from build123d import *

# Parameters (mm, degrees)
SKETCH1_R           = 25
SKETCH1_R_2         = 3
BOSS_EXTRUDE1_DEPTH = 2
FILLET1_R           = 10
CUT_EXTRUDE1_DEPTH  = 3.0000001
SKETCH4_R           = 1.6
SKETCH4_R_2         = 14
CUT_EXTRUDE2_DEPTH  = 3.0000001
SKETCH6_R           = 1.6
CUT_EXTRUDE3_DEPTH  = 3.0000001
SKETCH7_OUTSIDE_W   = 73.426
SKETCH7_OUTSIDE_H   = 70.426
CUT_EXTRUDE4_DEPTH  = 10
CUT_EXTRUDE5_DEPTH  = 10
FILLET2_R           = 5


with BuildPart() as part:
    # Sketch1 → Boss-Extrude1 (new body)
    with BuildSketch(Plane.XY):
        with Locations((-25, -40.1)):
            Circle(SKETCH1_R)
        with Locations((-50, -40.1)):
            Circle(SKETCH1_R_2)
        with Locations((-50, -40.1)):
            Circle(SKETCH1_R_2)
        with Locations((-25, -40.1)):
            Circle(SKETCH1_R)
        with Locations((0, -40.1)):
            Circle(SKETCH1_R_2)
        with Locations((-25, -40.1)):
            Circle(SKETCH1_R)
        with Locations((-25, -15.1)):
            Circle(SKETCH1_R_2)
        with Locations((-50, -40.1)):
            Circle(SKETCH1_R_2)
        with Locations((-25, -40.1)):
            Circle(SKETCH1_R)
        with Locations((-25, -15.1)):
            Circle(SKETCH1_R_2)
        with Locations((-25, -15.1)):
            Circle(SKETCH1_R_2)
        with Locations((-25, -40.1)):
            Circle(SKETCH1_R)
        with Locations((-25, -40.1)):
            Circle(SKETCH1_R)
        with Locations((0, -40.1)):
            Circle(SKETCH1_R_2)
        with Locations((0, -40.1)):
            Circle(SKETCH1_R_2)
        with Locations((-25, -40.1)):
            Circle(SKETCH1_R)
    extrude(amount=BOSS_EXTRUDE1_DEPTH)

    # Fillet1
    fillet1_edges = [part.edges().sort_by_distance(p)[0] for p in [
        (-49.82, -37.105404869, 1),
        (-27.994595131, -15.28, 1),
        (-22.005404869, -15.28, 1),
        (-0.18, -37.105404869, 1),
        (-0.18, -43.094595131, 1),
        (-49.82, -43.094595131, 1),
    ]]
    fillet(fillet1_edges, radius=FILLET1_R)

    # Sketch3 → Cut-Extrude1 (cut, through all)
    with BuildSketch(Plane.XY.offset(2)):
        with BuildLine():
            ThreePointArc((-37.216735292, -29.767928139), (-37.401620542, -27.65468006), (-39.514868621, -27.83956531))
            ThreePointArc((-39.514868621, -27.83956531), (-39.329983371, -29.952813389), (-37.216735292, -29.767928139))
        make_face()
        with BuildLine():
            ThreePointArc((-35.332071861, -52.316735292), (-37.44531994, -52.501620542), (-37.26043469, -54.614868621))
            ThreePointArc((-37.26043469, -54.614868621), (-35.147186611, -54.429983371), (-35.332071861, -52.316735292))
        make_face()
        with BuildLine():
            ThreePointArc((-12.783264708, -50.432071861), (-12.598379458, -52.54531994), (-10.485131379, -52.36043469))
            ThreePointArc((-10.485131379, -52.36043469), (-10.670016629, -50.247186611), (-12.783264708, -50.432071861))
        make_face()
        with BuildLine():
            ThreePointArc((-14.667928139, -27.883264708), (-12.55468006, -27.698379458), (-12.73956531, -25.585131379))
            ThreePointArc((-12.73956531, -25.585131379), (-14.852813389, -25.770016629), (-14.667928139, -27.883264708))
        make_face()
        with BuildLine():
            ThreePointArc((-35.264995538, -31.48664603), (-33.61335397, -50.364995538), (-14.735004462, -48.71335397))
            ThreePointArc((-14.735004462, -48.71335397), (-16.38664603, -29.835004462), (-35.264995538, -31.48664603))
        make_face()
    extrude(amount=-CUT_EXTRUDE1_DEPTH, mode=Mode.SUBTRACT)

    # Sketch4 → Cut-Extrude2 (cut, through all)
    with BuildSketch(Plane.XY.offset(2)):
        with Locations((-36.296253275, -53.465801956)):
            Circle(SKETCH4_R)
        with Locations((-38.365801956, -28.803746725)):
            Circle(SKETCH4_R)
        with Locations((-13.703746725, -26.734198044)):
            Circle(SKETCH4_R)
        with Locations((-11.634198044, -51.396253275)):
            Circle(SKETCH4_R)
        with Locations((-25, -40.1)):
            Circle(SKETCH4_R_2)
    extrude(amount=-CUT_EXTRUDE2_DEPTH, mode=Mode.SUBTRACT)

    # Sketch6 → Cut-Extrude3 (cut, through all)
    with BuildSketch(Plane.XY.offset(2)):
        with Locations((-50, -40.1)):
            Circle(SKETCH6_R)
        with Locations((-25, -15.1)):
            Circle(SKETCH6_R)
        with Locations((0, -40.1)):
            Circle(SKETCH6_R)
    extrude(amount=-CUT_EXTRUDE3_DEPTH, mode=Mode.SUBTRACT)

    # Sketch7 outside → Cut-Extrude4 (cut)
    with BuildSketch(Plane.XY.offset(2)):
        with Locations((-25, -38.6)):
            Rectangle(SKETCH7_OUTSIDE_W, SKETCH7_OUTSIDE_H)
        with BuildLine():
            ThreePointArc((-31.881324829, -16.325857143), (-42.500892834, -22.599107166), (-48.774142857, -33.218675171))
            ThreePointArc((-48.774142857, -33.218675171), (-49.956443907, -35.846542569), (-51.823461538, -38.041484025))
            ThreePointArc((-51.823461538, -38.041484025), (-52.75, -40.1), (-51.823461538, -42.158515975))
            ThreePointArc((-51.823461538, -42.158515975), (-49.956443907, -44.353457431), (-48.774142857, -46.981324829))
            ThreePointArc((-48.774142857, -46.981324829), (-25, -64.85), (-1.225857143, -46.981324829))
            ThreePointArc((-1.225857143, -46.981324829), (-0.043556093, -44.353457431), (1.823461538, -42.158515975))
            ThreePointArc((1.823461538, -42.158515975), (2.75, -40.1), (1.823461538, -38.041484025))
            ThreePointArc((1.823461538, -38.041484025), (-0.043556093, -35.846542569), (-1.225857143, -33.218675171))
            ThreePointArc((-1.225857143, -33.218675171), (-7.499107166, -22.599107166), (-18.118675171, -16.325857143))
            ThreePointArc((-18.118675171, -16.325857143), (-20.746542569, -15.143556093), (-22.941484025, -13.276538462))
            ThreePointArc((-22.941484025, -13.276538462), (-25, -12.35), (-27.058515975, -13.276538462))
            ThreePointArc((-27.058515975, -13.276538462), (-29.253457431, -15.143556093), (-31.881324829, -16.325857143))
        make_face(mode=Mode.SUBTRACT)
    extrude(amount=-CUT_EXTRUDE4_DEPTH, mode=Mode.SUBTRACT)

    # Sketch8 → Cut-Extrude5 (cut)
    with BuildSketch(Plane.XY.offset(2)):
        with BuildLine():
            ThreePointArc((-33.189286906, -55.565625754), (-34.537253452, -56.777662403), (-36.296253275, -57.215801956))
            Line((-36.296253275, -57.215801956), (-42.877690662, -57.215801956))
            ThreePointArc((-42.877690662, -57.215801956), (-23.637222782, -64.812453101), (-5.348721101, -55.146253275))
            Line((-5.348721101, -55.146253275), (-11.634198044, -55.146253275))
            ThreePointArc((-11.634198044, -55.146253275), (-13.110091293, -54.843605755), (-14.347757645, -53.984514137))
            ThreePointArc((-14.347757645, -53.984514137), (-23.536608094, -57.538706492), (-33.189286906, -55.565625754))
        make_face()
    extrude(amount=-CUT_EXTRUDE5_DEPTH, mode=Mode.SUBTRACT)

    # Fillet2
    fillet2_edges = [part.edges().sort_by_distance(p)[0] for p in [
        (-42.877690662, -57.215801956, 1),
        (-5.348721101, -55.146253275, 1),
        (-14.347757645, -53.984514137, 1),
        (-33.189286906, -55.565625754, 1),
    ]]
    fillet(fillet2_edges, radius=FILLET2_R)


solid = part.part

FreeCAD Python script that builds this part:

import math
import FreeCAD as App
import Part
import Sketcher


def edges_at(feature, points):
    """Names of the edges that pass closest to the given points."""
    edges = feature.Shape.Edges
    near = lambda p: min(range(len(edges)), key=lambda i: edges[i].distToShape(Part.Vertex(*p))[0])
    return sorted({f"Edge{near(p) + 1}" for p in points})

doc = App.newDocument("Part")
body = doc.addObject("PartDesign::Body", "Body")

sketch1 = body.newObject("Sketcher::SketchObject", "Sketch")
sketch1.AttachmentSupport = (doc.getObject("XY_Plane"), [""])
sketch1.MapMode = "FlatFace"
sketch1.addGeometry(Part.ArcOfCircle(Part.Circle(App.Vector(-25, -40.1, 0), App.Vector(0, 0, 1), 25), math.radians(-173.120374), math.radians(-6.879626)), False)
sketch1.addGeometry(Part.ArcOfCircle(Part.Circle(App.Vector(0, -40.1, 0), App.Vector(0, 0, 1), 3), math.radians(-93.439813), math.radians(93.439813)), False)
sketch1.addGeometry(Part.ArcOfCircle(Part.Circle(App.Vector(-25, -40.1, 0), App.Vector(0, 0, 1), 25), math.radians(6.879626), math.radians(83.120374)), False)
sketch1.addGeometry(Part.ArcOfCircle(Part.Circle(App.Vector(-25, -15.1, 0), App.Vector(0, 0, 1), 3), math.radians(-3.439813), math.radians(183.439813)), False)
sketch1.addGeometry(Part.ArcOfCircle(Part.Circle(App.Vector(-25, -40.1, 0), App.Vector(0, 0, 1), 25), math.radians(96.879626), math.radians(173.120374)), False)
sketch1.addGeometry(Part.ArcOfCircle(Part.Circle(App.Vector(-50, -40.1, 0), App.Vector(0, 0, 1), 3), math.radians(86.560187), math.radians(273.439813)), False)
sketch1.addConstraint(Sketcher.Constraint("Coincident", 0, 2, 1, 1))
sketch1.addConstraint(Sketcher.Constraint("Coincident", 1, 2, 2, 1))
sketch1.addConstraint(Sketcher.Constraint("Coincident", 2, 2, 3, 1))
sketch1.addConstraint(Sketcher.Constraint("Coincident", 3, 2, 4, 1))
sketch1.addConstraint(Sketcher.Constraint("Coincident", 4, 2, 5, 1))
sketch1.addConstraint(Sketcher.Constraint("Coincident", 5, 2, 0, 1))
sketch1.addConstraint(Sketcher.Constraint("Coincident", 2, 3, 0, 3))
sketch1.addConstraint(Sketcher.Constraint("Coincident", 4, 3, 0, 3))
sketch1.addConstraint(Sketcher.Constraint("Equal", 0, 2))
sketch1.addConstraint(Sketcher.Constraint("Equal", 1, 3))
sketch1.addConstraint(Sketcher.Constraint("Equal", 2, 4))
sketch1.addConstraint(Sketcher.Constraint("Equal", 3, 5))
sketch1.addConstraint(Sketcher.Constraint("PointOnObject", 1, 3, -2))
sketch1.addConstraint(Sketcher.Constraint("Horizontal", 0, 3, 1, 3))
sketch1.addConstraint(Sketcher.Constraint("Horizontal", 4, 3, 5, 3))
sketch1.addConstraint(Sketcher.Constraint("Horizontal", 2, 2, 3, 2))
sketch1.addConstraint(Sketcher.Constraint("Horizontal", 1, 2, 4, 2))
sketch1.addConstraint(Sketcher.Constraint("Radius", 0, 25.0))
sketch1.addConstraint(Sketcher.Constraint("Radius", 1, 3.0))
sketch1.addConstraint(Sketcher.Constraint("DistanceX", 0, 3, -1, 1, 25.0))
sketch1.addConstraint(Sketcher.Constraint("DistanceY", 0, 3, 3, 3, 25.0))
sketch1.addConstraint(Sketcher.Constraint("DistanceY", 0, 3, -1, 1, 40.1))
pad1 = body.newObject("PartDesign::Pad", "Pad")
pad1.Profile = sketch1
pad1.Length = 2
doc.recompute()

fillet = body.newObject("PartDesign::Fillet", "Fillet")
fillet.Base = (pad1, edges_at(pad1, [
    (-49.82, -37.105, 1),
    (-27.995, -15.28, 1),
    (-22.005, -15.28, 1),
    (-0.18, -37.105, 1),
    (-0.18, -43.095, 1),
    (-49.82, -43.095, 1),
]))
fillet.Radius = 10

sketch2 = body.newObject("Sketcher::SketchObject", "Sketch001")
sketch2.AttachmentSupport = (doc.getObject("XY_Plane"), [""])
sketch2.MapMode = "FlatFace"
sketch2.AttachmentOffset = App.Placement(App.Vector(0, 0, 2), App.Rotation())
sketch2.addGeometry(Part.Circle(App.Vector(-38.365802, -28.803747, 0), App.Vector(0, 0, 1), 1.5), False)
sketch2.addGeometry(Part.Circle(App.Vector(-36.296253, -53.465802, 0), App.Vector(0, 0, 1), 1.5), False)
sketch2.addGeometry(Part.Circle(App.Vector(-11.634198, -51.396253, 0), App.Vector(0, 0, 1), 1.5), False)
sketch2.addGeometry(Part.Circle(App.Vector(-13.703747, -26.734198, 0), App.Vector(0, 0, 1), 1.5), False)
sketch2.addGeometry(Part.Circle(App.Vector(-25, -40.1, 0), App.Vector(0, 0, 1), 13.4), False)
sketch2.addConstraint(Sketcher.Constraint("Equal", 0, 1))
sketch2.addConstraint(Sketcher.Constraint("Equal", 1, 2))
sketch2.addConstraint(Sketcher.Constraint("Equal", 2, 3))
sketch2.addConstraint(Sketcher.Constraint("Diameter", 0, 3.0))
sketch2.addConstraint(Sketcher.Constraint("Diameter", 4, 26.8))
sketch2.addConstraint(Sketcher.Constraint("DistanceX", 4, 3, -1, 1, 25.0))
sketch2.addConstraint(Sketcher.Constraint("DistanceY", 4, 3, -1, 1, 40.1))
sketch2.addConstraint(Sketcher.Constraint("DistanceX", 0, 3, -1, 1, 38.365802))
sketch2.addConstraint(Sketcher.Constraint("DistanceY", 1, 3, -1, 1, 53.465802))
sketch2.addConstraint(Sketcher.Constraint("DistanceX", 2, 3, -1, 1, 11.634198))
sketch2.addConstraint(Sketcher.Constraint("DistanceY", 3, 3, -1, 1, 26.734198))
sketch2.addConstraint(Sketcher.Constraint("DistanceX", 0, 3, 1, 3, 2.069549))
sketch2.addConstraint(Sketcher.Constraint("DistanceY", 1, 3, 2, 3, 2.069549))
sketch2.addConstraint(Sketcher.Constraint("DistanceY", 0, 3, 3, 3, 2.069549))
sketch2.addConstraint(Sketcher.Constraint("DistanceX", 3, 3, 2, 3, 2.069549))
pocket1 = body.newObject("PartDesign::Pocket", "Pocket")
pocket1.Profile = sketch2
pocket1.Type = "ThroughAll"

sketch3 = body.newObject("Sketcher::SketchObject", "Sketch002")
sketch3.AttachmentSupport = (doc.getObject("XY_Plane"), [""])
sketch3.MapMode = "FlatFace"
sketch3.AttachmentOffset = App.Placement(App.Vector(0, 0, 2), App.Rotation())
sketch3.addGeometry(Part.Circle(App.Vector(-36.296253, -53.465802, 0), App.Vector(0, 0, 1), 1.6), False)
sketch3.addGeometry(Part.Circle(App.Vector(-38.365802, -28.803747, 0), App.Vector(0, 0, 1), 1.6), False)
sketch3.addGeometry(Part.Circle(App.Vector(-13.703747, -26.734198, 0), App.Vector(0, 0, 1), 1.6), False)
sketch3.addGeometry(Part.Circle(App.Vector(-11.634198, -51.396253, 0), App.Vector(0, 0, 1), 1.6), False)
sketch3.addGeometry(Part.Circle(App.Vector(-25, -40.1, 0), App.Vector(0, 0, 1), 14), False)
sketch3.addConstraint(Sketcher.Constraint("Equal", 0, 1))
sketch3.addConstraint(Sketcher.Constraint("Equal", 1, 2))
sketch3.addConstraint(Sketcher.Constraint("Equal", 2, 3))
sketch3.addConstraint(Sketcher.Constraint("Diameter", 4, 28.0))
sketch3.addConstraint(Sketcher.Constraint("Diameter", 0, 3.2))
sketch3.addConstraint(Sketcher.Constraint("DistanceX", 4, 3, -1, 1, 25.0))
sketch3.addConstraint(Sketcher.Constraint("DistanceY", 4, 3, -1, 1, 40.1))
sketch3.addConstraint(Sketcher.Constraint("DistanceY", 0, 3, -1, 1, 53.465802))
sketch3.addConstraint(Sketcher.Constraint("DistanceX", 1, 3, -1, 1, 38.365802))
sketch3.addConstraint(Sketcher.Constraint("DistanceY", 2, 3, -1, 1, 26.734198))
sketch3.addConstraint(Sketcher.Constraint("DistanceX", 3, 3, -1, 1, 11.634198))
sketch3.addConstraint(Sketcher.Constraint("DistanceX", 1, 3, 0, 3, 2.069549))
sketch3.addConstraint(Sketcher.Constraint("DistanceY", 1, 3, 2, 3, 2.069549))
sketch3.addConstraint(Sketcher.Constraint("DistanceY", 0, 3, 3, 3, 2.069549))
sketch3.addConstraint(Sketcher.Constraint("DistanceX", 2, 3, 3, 3, 2.069549))
pocket2 = body.newObject("PartDesign::Pocket", "Pocket001")
pocket2.Profile = sketch3
pocket2.Type = "ThroughAll"

sketch4 = body.newObject("Sketcher::SketchObject", "Sketch003")
sketch4.AttachmentSupport = (doc.getObject("XY_Plane"), [""])
sketch4.MapMode = "FlatFace"
sketch4.AttachmentOffset = App.Placement(App.Vector(0, 0, 2), App.Rotation())
sketch4.addGeometry(Part.Circle(App.Vector(-50, -40.1, 0), App.Vector(0, 0, 1), 1.6), False)
sketch4.addGeometry(Part.Circle(App.Vector(-25, -15.1, 0), App.Vector(0, 0, 1), 1.6), False)
sketch4.addGeometry(Part.Circle(App.Vector(0, -40.1, 0), App.Vector(0, 0, 1), 1.6), False)
sketch4.addConstraint(Sketcher.Constraint("Equal", 0, 1))
sketch4.addConstraint(Sketcher.Constraint("Equal", 1, 2))
sketch4.addConstraint(Sketcher.Constraint("PointOnObject", 2, 3, -2))
sketch4.addConstraint(Sketcher.Constraint("Horizontal", 0, 3, 2, 3))
sketch4.addConstraint(Sketcher.Constraint("Diameter", 0, 3.2))
sketch4.addConstraint(Sketcher.Constraint("DistanceX", 0, 3, -1, 1, 50.0))
sketch4.addConstraint(Sketcher.Constraint("DistanceX", 1, 3, -1, 1, 25.0))
sketch4.addConstraint(Sketcher.Constraint("DistanceY", 0, 3, 1, 3, 25.0))
sketch4.addConstraint(Sketcher.Constraint("DistanceY", 0, 3, -1, 1, 40.1))
pocket3 = body.newObject("PartDesign::Pocket", "Pocket002")
pocket3.Profile = sketch4
pocket3.Type = "ThroughAll"

sketch5 = body.newObject("Sketcher::SketchObject", "Sketch004")
sketch5.AttachmentSupport = (doc.getObject("XY_Plane"), [""])
sketch5.MapMode = "FlatFace"
sketch5.AttachmentOffset = App.Placement(App.Vector(0, 0, 2), App.Rotation())
sketch5.addGeometry(Part.LineSegment(App.Vector(-61.713, -3.387, 0), App.Vector(-61.713, -73.813, 0)), False)
sketch5.addGeometry(Part.LineSegment(App.Vector(-61.713, -73.813, 0), App.Vector(11.713, -73.813, 0)), False)
sketch5.addGeometry(Part.LineSegment(App.Vector(11.713, -73.813, 0), App.Vector(11.713, -3.387, 0)), False)
sketch5.addGeometry(Part.LineSegment(App.Vector(11.713, -3.387, 0), App.Vector(-61.713, -3.387, 0)), False)
sketch5.addGeometry(Part.ArcOfCircle(Part.Circle(App.Vector(-25, -40.1, 0), App.Vector(0, 0, 1), 24.75), math.radians(106.142862), math.radians(163.857138)), False)
sketch5.addGeometry(Part.ArcOfCircle(Part.Circle(App.Vector(-34.731166, -6.48, 0), App.Vector(0, 0, 1), 10.25), math.radians(-73.857138), math.radians(-41.534961)), False)
sketch5.addGeometry(Part.ArcOfCircle(Part.Circle(App.Vector(-25, -15.1, 0), App.Vector(0, 0, 1), 2.75), math.radians(41.534961), math.radians(138.465039)), False)
sketch5.addGeometry(Part.ArcOfCircle(Part.Circle(App.Vector(-15.268834, -6.48, 0), App.Vector(0, 0, 1), 10.25), math.radians(-138.465039), math.radians(-106.142862)), False)
sketch5.addGeometry(Part.ArcOfCircle(Part.Circle(App.Vector(-25, -40.1, 0), App.Vector(0, 0, 1), 24.75), math.radians(16.142862), math.radians(73.857138)), False)
sketch5.addGeometry(Part.ArcOfCircle(Part.Circle(App.Vector(8.62, -30.368834, 0), App.Vector(0, 0, 1), 10.25), math.radians(-163.857138), math.radians(-131.534961)), False)
sketch5.addGeometry(Part.ArcOfCircle(Part.Circle(App.Vector(0, -40.1, 0), App.Vector(0, 0, 1), 2.75), math.radians(-48.465039), math.radians(48.465039)), False)
sketch5.addGeometry(Part.ArcOfCircle(Part.Circle(App.Vector(8.62, -49.831166, 0), App.Vector(0, 0, 1), 10.25), math.radians(131.534961), math.radians(163.857138)), False)
sketch5.addGeometry(Part.ArcOfCircle(Part.Circle(App.Vector(-25, -40.1, 0), App.Vector(0, 0, 1), 24.75), math.radians(-163.857138), math.radians(-16.142862)), False)
sketch5.addGeometry(Part.ArcOfCircle(Part.Circle(App.Vector(-58.62, -49.831166, 0), App.Vector(0, 0, 1), 10.25), math.radians(16.142862), math.radians(48.465039)), False)
sketch5.addGeometry(Part.ArcOfCircle(Part.Circle(App.Vector(-50, -40.1, 0), App.Vector(0, 0, 1), 2.75), math.radians(131.534961), math.radians(228.465039)), False)
sketch5.addGeometry(Part.ArcOfCircle(Part.Circle(App.Vector(-58.62, -30.368834, 0), App.Vector(0, 0, 1), 10.25), math.radians(-48.465039), math.radians(-16.142862)), False)
sketch5.addConstraint(Sketcher.Constraint("Coincident", 0, 2, 1, 1))
sketch5.addConstraint(Sketcher.Constraint("Coincident", 1, 2, 2, 1))
sketch5.addConstraint(Sketcher.Constraint("Coincident", 2, 2, 3, 1))
sketch5.addConstraint(Sketcher.Constraint("Coincident", 3, 2, 0, 1))
sketch5.addConstraint(Sketcher.Constraint("Tangent", 4, 1, 5, 1))
sketch5.addConstraint(Sketcher.Constraint("Tangent", 5, 2, 6, 2))
sketch5.addConstraint(Sketcher.Constraint("Tangent", 6, 1, 7, 1))
sketch5.addConstraint(Sketcher.Constraint("Tangent", 7, 2, 8, 2))
sketch5.addConstraint(Sketcher.Constraint("Tangent", 8, 1, 9, 1))
sketch5.addConstraint(Sketcher.Constraint("Tangent", 9, 2, 10, 2))
sketch5.addConstraint(Sketcher.Constraint("Tangent", 10, 1, 11, 1))
sketch5.addConstraint(Sketcher.Constraint("Tangent", 11, 2, 12, 2))
sketch5.addConstraint(Sketcher.Constraint("Tangent", 12, 1, 13, 1))
sketch5.addConstraint(Sketcher.Constraint("Tangent", 13, 2, 14, 2))
sketch5.addConstraint(Sketcher.Constraint("Tangent", 14, 1, 15, 1))
sketch5.addConstraint(Sketcher.Constraint("Tangent", 15, 2, 4, 2))
sketch5.addConstraint(Sketcher.Constraint("Vertical", 0))
sketch5.addConstraint(Sketcher.Constraint("Horizontal", 1))
sketch5.addConstraint(Sketcher.Constraint("Vertical", 2))
sketch5.addConstraint(Sketcher.Constraint("Horizontal", 3))
sketch5.addConstraint(Sketcher.Constraint("Coincident", 8, 3, 4, 3))
sketch5.addConstraint(Sketcher.Constraint("Coincident", 12, 3, 4, 3))
sketch5.addConstraint(Sketcher.Constraint("Equal", 5, 7))
sketch5.addConstraint(Sketcher.Constraint("Equal", 4, 8))
sketch5.addConstraint(Sketcher.Constraint("Equal", 7, 9))
sketch5.addConstraint(Sketcher.Constraint("Equal", 6, 10))
sketch5.addConstraint(Sketcher.Constraint("Equal", 9, 11))
sketch5.addConstraint(Sketcher.Constraint("Equal", 8, 12))
sketch5.addConstraint(Sketcher.Constraint("Equal", 11, 13))
sketch5.addConstraint(Sketcher.Constraint("Equal", 10, 14))
sketch5.addConstraint(Sketcher.Constraint("Equal", 13, 15))
sketch5.addConstraint(Sketcher.Constraint("PointOnObject", 10, 3, -2))
sketch5.addConstraint(Sketcher.Constraint("Horizontal", 5, 3, 7, 3))
sketch5.addConstraint(Sketcher.Constraint("Horizontal", 8, 3, 10, 3))
sketch5.addConstraint(Sketcher.Constraint("Horizontal", 11, 3, 13, 3))
sketch5.addConstraint(Sketcher.Constraint("Horizontal", 12, 3, 14, 3))
sketch5.addConstraint(Sketcher.Constraint("Radius", 4, 24.75))
sketch5.addConstraint(Sketcher.Constraint("Radius", 5, 10.25))
sketch5.addConstraint(Sketcher.Constraint("Radius", 6, 2.75))
sketch5.addConstraint(Sketcher.Constraint("DistanceX", 4, 3, -1, 1, 25.0))
sketch5.addConstraint(Sketcher.Constraint("DistanceY", 4, 3, 6, 3, 25.0))
sketch5.addConstraint(Sketcher.Constraint("DistanceY", 4, 3, -1, 1, 40.1))
sketch5.addConstraint(Sketcher.Constraint("DistanceX", 1, 1, 1, 2, 73.426))
sketch5.addConstraint(Sketcher.Constraint("DistanceY", 0, 2, 0, 1, 70.426))
sketch5.addConstraint(Sketcher.Constraint("DistanceX", 0, 2, -1, 1, 61.713))
sketch5.addConstraint(Sketcher.Constraint("DistanceY", 0, 2, -1, 1, 73.813))
pocket4 = body.newObject("PartDesign::Pocket", "Pocket003")
pocket4.Profile = sketch5
pocket4.Length = 10

sketch6 = body.newObject("Sketcher::SketchObject", "Sketch005")
sketch6.AttachmentSupport = (doc.getObject("XY_Plane"), [""])
sketch6.MapMode = "FlatFace"
sketch6.AttachmentOffset = App.Placement(App.Vector(0, 0, 2), App.Rotation())
sketch6.addGeometry(Part.ArcOfCircle(Part.Circle(App.Vector(-36.296253, -53.465802, 0), App.Vector(0, 0, 1), 3.75), math.radians(-90), math.radians(-34.052548)), False)
sketch6.addGeometry(Part.LineSegment(App.Vector(-36.296253, -57.215802, 0), App.Vector(-42.877691, -57.215802, 0)), False)
sketch6.addGeometry(Part.ArcOfCircle(Part.Circle(App.Vector(-25, -40.1, 0), App.Vector(0, 0, 1), 24.75), math.radians(-136.247264), math.radians(-37.439937)), False)
sketch6.addGeometry(Part.LineSegment(App.Vector(-5.348721, -55.146253, 0), App.Vector(-11.634198, -55.146253, 0)), False)
sketch6.addGeometry(Part.ArcOfCircle(Part.Circle(App.Vector(-11.634198, -51.396253, 0), App.Vector(0, 0, 1), 3.75), math.radians(-136.353828), math.radians(-90)), False)
sketch6.addGeometry(Part.ArcOfCircle(Part.Circle(App.Vector(-25, -40.1, 0), App.Vector(0, 0, 1), 17.5), math.radians(-117.901908), math.radians(-52.504468)), False)
sketch6.addConstraint(Sketcher.Constraint("Tangent", 0, 1, 1, 1))
sketch6.addConstraint(Sketcher.Constraint("Coincident", 1, 2, 2, 1))
sketch6.addConstraint(Sketcher.Constraint("Coincident", 2, 2, 3, 1))
sketch6.addConstraint(Sketcher.Constraint("Tangent", 3, 2, 4, 2))
sketch6.addConstraint(Sketcher.Constraint("Coincident", 4, 1, 5, 2))
sketch6.addConstraint(Sketcher.Constraint("Coincident", 5, 1, 0, 2))
sketch6.addConstraint(Sketcher.Constraint("Horizontal", 1))
sketch6.addConstraint(Sketcher.Constraint("Horizontal", 3))
sketch6.addConstraint(Sketcher.Constraint("Coincident", 5, 3, 2, 3))
sketch6.addConstraint(Sketcher.Constraint("Equal", 0, 4))
sketch6.addConstraint(Sketcher.Constraint("Radius", 5, 17.5))
sketch6.addConstraint(Sketcher.Constraint("Radius", 0, 3.75))
sketch6.addConstraint(Sketcher.Constraint("Radius", 2, 24.75))
sketch6.addConstraint(Sketcher.Constraint("DistanceX", 2, 3, -1, 1, 25.0))
sketch6.addConstraint(Sketcher.Constraint("DistanceY", 2, 3, -1, 1, 40.1))
sketch6.addConstraint(Sketcher.Constraint("DistanceY", 0, 3, -1, 1, 53.465802))
sketch6.addConstraint(Sketcher.Constraint("DistanceX", 4, 3, -1, 1, 11.634198))
sketch6.addConstraint(Sketcher.Constraint("DistanceX", 1, 2, 1, 1, 6.581437))
sketch6.addConstraint(Sketcher.Constraint("DistanceX", 3, 2, 3, 1, 6.285477))
pocket5 = body.newObject("PartDesign::Pocket", "Pocket004")
pocket5.Profile = sketch6
pocket5.Length = 10
doc.recompute()

fillet2 = body.newObject("PartDesign::Fillet", "Fillet001")
fillet2.Base = (pocket5, edges_at(pocket5, [
    (-42.878, -57.216, 1),
    (-5.349, -55.146, 1),
    (-14.348, -53.985, 1),
    (-33.189, -55.566, 1),
]))
fillet2.Radius = 5

doc.recompute()
